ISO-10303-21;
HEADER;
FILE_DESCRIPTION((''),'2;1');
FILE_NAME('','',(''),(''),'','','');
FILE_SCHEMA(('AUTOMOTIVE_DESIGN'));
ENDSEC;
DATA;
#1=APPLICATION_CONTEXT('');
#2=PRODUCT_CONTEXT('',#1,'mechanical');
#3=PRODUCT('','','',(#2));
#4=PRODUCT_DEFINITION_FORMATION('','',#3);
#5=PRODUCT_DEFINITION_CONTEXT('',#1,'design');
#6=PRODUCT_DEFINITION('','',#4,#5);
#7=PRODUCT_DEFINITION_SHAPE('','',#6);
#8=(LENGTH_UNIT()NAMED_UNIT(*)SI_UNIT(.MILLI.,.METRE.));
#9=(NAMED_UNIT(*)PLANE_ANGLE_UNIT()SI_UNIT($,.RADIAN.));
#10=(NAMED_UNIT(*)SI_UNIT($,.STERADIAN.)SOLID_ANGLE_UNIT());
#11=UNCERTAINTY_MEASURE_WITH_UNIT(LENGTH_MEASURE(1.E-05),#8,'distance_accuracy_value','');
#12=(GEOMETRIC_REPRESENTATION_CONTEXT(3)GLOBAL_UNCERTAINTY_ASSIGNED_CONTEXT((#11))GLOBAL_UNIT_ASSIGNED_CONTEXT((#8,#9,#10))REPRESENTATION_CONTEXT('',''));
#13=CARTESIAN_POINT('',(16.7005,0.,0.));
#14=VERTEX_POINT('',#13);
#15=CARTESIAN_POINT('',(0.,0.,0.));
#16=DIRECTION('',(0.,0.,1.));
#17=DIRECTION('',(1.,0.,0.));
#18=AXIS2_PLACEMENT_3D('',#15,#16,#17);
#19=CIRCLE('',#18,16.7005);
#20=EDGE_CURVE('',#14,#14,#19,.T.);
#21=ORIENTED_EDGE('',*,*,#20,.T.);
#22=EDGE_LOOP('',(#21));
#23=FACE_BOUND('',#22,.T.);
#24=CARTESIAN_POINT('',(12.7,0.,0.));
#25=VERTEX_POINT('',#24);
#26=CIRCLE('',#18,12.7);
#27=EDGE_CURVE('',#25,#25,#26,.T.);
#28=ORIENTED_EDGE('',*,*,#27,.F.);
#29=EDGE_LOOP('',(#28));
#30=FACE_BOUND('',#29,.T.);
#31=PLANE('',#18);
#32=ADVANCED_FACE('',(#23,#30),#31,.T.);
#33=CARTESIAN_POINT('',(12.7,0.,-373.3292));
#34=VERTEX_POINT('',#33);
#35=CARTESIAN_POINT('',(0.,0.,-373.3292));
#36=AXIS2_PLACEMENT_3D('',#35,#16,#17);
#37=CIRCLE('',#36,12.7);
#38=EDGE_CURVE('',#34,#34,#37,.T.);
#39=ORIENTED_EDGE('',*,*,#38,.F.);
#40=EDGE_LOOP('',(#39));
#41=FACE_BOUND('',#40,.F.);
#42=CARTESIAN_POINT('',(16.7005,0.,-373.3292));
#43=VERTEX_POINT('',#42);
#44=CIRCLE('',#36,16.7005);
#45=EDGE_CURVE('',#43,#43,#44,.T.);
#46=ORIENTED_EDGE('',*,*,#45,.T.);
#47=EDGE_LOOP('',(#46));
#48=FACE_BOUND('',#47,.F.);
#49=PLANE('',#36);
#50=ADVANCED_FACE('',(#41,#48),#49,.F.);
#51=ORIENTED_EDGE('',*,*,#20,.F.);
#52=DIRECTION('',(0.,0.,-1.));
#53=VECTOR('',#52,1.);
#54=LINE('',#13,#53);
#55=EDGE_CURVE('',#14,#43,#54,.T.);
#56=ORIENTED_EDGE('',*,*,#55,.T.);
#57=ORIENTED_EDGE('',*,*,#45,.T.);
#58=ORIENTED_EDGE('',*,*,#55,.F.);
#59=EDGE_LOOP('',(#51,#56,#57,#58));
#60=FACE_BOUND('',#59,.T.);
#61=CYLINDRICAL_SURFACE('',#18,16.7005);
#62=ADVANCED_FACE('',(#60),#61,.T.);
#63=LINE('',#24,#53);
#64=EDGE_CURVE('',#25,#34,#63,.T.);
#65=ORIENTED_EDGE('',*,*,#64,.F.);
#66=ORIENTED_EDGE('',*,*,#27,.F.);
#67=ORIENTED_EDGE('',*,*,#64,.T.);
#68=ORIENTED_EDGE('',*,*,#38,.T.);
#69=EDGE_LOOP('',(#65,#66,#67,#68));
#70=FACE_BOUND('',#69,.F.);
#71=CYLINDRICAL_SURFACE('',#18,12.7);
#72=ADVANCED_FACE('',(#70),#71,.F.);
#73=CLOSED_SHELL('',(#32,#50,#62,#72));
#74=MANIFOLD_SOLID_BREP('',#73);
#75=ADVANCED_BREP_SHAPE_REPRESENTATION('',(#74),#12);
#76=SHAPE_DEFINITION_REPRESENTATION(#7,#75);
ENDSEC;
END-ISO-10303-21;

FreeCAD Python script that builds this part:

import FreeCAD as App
import Part
import Sketcher

V = App.Vector
Q = App.Units.Quantity

doc = App.newDocument("Part")
body = doc.addObject("PartDesign::Body", "Body")

sketch1 = doc.addObject("Sketcher::SketchObject", "Sketch")
body.addObject(sketch1)
sketch1.AttachmentSupport = (doc.XY_Plane, [""])
sketch1.MapMode = "FlatFace"
sketch1.addGeometry(Part.Circle(V(0, 0, 0), V(0, 0, 1), 17), False)
sketch1.addGeometry(Part.Circle(V(0, 0, 0), V(0, 0, 1), 13), False)
sketch1.addConstraint(Sketcher.Constraint("Coincident", 0, 3, -1, 1))
sketch1.addConstraint(Sketcher.Constraint("Coincident", 1, 3, -1, 1))
sketch1.addConstraint(Sketcher.Constraint("Diameter", 1, Q("1 in")))
sketch1.addConstraint(Sketcher.Constraint("Diameter", 0, Q("1.315 in")))
pad1 = doc.addObject("PartDesign::Pad", "Pad")
body.addObject(pad1)
pad1.Profile = sketch1
pad1.Length = Q("14.698 in")
pad1.Reversed = True

doc.recompute()
